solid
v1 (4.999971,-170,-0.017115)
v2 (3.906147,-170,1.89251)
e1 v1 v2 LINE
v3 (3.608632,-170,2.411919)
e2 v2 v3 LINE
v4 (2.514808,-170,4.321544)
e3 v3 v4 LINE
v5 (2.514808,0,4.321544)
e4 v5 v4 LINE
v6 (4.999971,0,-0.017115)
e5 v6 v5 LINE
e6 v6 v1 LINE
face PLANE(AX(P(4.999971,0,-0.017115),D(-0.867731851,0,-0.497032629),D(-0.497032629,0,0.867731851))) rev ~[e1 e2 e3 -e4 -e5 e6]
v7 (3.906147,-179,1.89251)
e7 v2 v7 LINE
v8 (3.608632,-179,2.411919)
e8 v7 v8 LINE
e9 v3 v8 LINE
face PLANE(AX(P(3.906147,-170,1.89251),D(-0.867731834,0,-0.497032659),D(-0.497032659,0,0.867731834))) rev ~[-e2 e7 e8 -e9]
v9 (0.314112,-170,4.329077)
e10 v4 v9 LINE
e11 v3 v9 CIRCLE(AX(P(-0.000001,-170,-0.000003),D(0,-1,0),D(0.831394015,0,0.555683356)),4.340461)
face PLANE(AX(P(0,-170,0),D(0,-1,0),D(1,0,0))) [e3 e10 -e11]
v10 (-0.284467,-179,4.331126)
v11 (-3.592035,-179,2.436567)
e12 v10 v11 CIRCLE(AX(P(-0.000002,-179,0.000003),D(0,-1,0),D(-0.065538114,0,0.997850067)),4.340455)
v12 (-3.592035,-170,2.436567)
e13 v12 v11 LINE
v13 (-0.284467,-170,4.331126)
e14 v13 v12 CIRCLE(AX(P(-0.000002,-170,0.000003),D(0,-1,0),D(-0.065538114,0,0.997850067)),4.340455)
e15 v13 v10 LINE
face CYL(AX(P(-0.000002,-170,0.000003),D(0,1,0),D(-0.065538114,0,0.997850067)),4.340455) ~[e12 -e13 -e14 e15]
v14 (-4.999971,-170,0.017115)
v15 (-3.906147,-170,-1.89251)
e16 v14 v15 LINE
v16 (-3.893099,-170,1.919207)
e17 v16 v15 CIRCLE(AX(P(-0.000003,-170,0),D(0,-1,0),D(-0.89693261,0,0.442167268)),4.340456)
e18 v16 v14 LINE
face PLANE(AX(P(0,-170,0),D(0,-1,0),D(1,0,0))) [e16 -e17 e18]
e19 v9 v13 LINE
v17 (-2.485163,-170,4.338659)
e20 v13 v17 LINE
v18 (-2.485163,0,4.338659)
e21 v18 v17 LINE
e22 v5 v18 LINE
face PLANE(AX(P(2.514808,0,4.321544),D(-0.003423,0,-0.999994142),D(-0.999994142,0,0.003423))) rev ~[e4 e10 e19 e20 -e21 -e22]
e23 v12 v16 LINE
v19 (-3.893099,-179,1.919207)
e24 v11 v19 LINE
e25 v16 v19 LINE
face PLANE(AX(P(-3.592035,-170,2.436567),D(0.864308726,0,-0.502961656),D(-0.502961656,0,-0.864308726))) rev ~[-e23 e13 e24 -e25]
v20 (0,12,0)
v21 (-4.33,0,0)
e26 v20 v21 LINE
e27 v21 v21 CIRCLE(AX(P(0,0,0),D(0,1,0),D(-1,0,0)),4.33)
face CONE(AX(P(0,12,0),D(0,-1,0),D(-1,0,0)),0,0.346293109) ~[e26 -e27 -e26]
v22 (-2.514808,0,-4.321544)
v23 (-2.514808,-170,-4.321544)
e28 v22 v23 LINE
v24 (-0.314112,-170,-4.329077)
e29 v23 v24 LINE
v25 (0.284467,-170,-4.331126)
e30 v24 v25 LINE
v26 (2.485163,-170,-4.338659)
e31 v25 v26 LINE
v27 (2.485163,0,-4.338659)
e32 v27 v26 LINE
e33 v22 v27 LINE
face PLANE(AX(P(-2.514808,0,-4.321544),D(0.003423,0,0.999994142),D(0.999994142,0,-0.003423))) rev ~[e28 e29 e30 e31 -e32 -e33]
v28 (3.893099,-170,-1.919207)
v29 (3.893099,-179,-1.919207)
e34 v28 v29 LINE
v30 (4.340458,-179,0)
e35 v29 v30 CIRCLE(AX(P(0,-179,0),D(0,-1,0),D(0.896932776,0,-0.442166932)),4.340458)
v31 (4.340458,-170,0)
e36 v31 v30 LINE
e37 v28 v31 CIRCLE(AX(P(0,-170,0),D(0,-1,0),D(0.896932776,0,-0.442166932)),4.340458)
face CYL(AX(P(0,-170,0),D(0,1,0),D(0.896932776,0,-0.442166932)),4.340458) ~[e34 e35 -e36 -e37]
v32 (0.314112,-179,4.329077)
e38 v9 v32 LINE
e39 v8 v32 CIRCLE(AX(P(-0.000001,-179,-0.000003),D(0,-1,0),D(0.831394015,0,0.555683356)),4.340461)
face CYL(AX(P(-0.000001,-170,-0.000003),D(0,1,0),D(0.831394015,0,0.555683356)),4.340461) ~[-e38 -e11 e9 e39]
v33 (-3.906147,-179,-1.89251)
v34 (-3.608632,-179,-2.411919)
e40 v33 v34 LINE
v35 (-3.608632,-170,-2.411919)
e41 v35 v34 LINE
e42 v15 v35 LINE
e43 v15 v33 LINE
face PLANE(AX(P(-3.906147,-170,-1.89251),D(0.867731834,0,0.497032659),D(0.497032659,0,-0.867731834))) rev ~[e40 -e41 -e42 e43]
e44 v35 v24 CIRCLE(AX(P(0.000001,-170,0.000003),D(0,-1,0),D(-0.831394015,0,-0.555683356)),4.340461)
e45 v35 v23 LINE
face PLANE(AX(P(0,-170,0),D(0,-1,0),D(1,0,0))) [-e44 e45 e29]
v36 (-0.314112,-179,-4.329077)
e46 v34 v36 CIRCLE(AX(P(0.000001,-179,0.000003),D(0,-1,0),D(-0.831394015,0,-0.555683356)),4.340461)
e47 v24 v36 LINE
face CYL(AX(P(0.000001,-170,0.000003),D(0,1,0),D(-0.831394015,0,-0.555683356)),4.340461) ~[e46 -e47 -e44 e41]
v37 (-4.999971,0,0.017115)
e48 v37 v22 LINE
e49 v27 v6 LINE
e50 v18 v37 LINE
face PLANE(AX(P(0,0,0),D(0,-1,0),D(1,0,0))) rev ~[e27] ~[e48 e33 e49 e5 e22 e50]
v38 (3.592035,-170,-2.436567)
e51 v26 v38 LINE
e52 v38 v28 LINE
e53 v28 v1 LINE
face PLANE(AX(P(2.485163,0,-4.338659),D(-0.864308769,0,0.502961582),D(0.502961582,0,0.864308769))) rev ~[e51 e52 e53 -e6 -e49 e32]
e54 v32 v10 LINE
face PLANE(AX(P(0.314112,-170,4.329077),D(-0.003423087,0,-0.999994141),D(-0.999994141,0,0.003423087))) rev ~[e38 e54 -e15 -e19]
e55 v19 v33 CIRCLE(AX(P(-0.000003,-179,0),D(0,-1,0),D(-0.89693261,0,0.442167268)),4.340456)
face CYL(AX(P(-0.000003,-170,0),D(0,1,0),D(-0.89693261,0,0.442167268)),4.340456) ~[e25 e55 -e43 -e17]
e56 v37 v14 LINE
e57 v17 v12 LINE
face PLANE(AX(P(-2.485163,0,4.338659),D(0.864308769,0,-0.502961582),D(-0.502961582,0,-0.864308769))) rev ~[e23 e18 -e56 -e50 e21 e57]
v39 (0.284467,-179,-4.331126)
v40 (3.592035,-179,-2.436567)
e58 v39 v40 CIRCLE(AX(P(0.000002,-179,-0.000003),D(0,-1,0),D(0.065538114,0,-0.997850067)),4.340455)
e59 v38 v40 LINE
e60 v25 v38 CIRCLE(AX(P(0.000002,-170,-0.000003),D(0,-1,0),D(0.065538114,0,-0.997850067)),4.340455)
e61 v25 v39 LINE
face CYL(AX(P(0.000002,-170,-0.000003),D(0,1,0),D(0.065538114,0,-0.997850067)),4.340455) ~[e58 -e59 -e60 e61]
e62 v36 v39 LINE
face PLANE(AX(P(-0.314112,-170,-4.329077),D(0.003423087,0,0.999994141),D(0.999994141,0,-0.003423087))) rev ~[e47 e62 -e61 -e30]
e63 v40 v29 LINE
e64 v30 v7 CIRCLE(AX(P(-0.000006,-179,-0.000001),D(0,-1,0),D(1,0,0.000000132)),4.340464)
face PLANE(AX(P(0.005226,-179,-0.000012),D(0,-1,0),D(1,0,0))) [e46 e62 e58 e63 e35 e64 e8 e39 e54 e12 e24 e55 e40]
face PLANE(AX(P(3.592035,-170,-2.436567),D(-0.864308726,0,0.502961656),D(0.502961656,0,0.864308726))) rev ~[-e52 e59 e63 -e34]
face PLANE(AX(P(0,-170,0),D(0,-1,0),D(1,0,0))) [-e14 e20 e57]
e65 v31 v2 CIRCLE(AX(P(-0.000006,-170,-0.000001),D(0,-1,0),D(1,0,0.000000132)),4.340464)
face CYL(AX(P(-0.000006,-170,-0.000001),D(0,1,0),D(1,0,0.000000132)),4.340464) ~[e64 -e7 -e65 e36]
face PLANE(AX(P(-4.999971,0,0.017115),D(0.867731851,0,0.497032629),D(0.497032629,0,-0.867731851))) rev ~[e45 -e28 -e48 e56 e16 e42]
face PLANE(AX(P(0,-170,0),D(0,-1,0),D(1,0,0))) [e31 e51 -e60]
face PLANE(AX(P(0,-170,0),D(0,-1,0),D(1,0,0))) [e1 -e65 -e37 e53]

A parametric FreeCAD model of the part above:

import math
import FreeCAD as App
import Part
import Sketcher
from FreeCAD import Vector


def add_polygon(sketch, points):
    """Adds a closed chain of lines whose ends are joined by coincident constraints."""
    first, n = sketch.GeometryCount, len(points)
    for a, b in zip(points, points[1:] + points[:1]):
        sketch.addGeometry(Part.LineSegment(App.Vector(*a, 0), App.Vector(*b, 0)), False)
    for i in range(n):
        sketch.addConstraint(Sketcher.Constraint("Coincident", first + i, 2, first + (i + 1) % n, 1))

doc = App.newDocument("Part")
body = doc.addObject("PartDesign::Body", "Body")

sketch1 = body.newObject("Sketcher::SketchObject", "Sketch")
sketch1.AttachmentSupport = (doc.getObject("XZ_Plane"), [""])
sketch1.MapMode = "FlatFace"
add_polygon(sketch1, [(5, 0), (2.5, 4.3), (-2.5, 4.3), (-5, 0), (-2.5, -4.3), (2.5, -4.3)])
sketch1.addConstraint(Sketcher.Constraint("Symmetric", 0, 2, 3, 2, -1, 1))
sketch1.addConstraint(Sketcher.Constraint("Symmetric", 1, 2, 4, 2, -1, 1))
sketch1.addConstraint(Sketcher.Constraint("Symmetric", 2, 2, 5, 2, -1, 1))
sketch1.addConstraint(Sketcher.Constraint("Equal", 0, 1))
sketch1.addConstraint(Sketcher.Constraint("Equal", 1, 2))
sketch1.addConstraint(Sketcher.Constraint("Distance", 0, 5.0))
sketch1.addConstraint(Sketcher.Constraint("DistanceY", -1, 1, 1, 2, 4.338659))
sketch1.addConstraint(Sketcher.Constraint("DistanceX", 2, 2, -1, 1, 4.999971))
sketch1.addConstraint(Sketcher.Constraint("DistanceX", 2, 2, 1, 2, 2.514808))
pad1 = body.newObject("PartDesign::Pad", "Pad")
pad1.Profile = sketch1
pad1.Length = 170

sketch2 = body.newObject("Sketcher::SketchObject", "Sketch001")
sketch2.AttachmentSupport = (doc.getObject("XY_Plane"), [""])
sketch2.MapMode = "FlatFace"
add_polygon(sketch2, [(-4.3, 0), (0, 0), (0, 12)])
sketch2.addConstraint(Sketcher.Constraint("Horizontal", 0))
sketch2.addConstraint(Sketcher.Constraint("Vertical", 1))
sketch2.addConstraint(Sketcher.Constraint("Coincident", 0, 2, -1, 1))
sketch2.addConstraint(Sketcher.Constraint("DistanceY", 1, 1, 1, 2, 12.0))
sketch2.addConstraint(Sketcher.Constraint("DistanceX", 0, 1, 0, 2, 4.33))
revolution = body.newObject("PartDesign::Revolution", "Revolution")
revolution.Profile = sketch2
revolution.ReferenceAxis = (sketch2, ["V_Axis"])
revolution.Angle = 360

sketch3 = body.newObject("Sketcher::SketchObject", "Sketch002")
sketch3.AttachmentSupport = (doc.getObject("XZ_Plane"), [""])
sketch3.MapMode = "FlatFace"
sketch3.AttachmentOffset = App.Placement(Vector(0, 0, 170), App.Rotation())
sketch3.addGeometry(Part.ArcOfCircle(Part.Circle(Vector(0, 0, 0), Vector(0, 0, 1), 4.3), math.radians(-26), math.radians(0)), False)
sketch3.addGeometry(Part.ArcOfCircle(Part.Circle(Vector(0, 0, 0), Vector(0, 0, 1), 4.3), math.radians(0), math.radians(26)), False)
sketch3.addGeometry(Part.LineSegment(Vector(3.9, 1.9, 0), Vector(3.6, 2.4, 0)), False)
sketch3.addGeometry(Part.ArcOfCircle(Part.Circle(Vector(0, 0, 0), Vector(0, 0, 1), 4.3), math.radians(34), math.radians(86)), False)
sketch3.addGeometry(Part.LineSegment(Vector(0.3, 4.3, 0), Vector(-0.3, 4.3, 0)), False)
sketch3.addGeometry(Part.ArcOfCircle(Part.Circle(Vector(0, 0, 0), Vector(0, 0, 1), 4.3), math.radians(94), math.radians(146)), False)
sketch3.addGeometry(Part.LineSegment(Vector(-3.6, 2.4, 0), Vector(-3.9, 1.9, 0)), False)
sketch3.addGeometry(Part.ArcOfCircle(Part.Circle(Vector(0, 0, 0), Vector(0, 0, 1), 4.3), math.radians(154), math.radians(206)), False)
sketch3.addGeometry(Part.LineSegment(Vector(-3.9, -1.9, 0), Vector(-3.6, -2.4, 0)), False)
sketch3.addGeometry(Part.ArcOfCircle(Part.Circle(Vector(0, 0, 0), Vector(0, 0, 1), 4.3), math.radians(-146), math.radians(-94)), False)
sketch3.addGeometry(Part.LineSegment(Vector(-0.3, -4.3, 0), Vector(0.3, -4.3, 0)), False)
sketch3.addGeometry(Part.ArcOfCircle(Part.Circle(Vector(0, 0, 0), Vector(0, 0, 1), 4.3), math.radians(-86), math.radians(-34)), False)
sketch3.addGeometry(Part.LineSegment(Vector(3.6, -2.4, 0), Vector(3.9, -1.9, 0)), False)
sketch3.addConstraint(Sketcher.Constraint("Tangent", 0, 2, 1, 1))
sketch3.addConstraint(Sketcher.Constraint("Coincident", 1, 2, 2, 1))
sketch3.addConstraint(Sketcher.Constraint("Coincident", 2, 2, 3, 1))
sketch3.addConstraint(Sketcher.Constraint("Coincident", 3, 2, 4, 1))
sketch3.addConstraint(Sketcher.Constraint("Coincident", 4, 2, 5, 1))
sketch3.addConstraint(Sketcher.Constraint("Coincident", 5, 2, 6, 1))
sketch3.addConstraint(Sketcher.Constraint("Coincident", 6, 2, 7, 1))
sketch3.addConstraint(Sketcher.Constraint("Coincident", 7, 2, 8, 1))
sketch3.addConstraint(Sketcher.Constraint("Coincident", 8, 2, 9, 1))
sketch3.addConstraint(Sketcher.Constraint("Coincident", 9, 2, 10, 1))
sketch3.addConstraint(Sketcher.Constraint("Coincident", 10, 2, 11, 1))
sketch3.addConstraint(Sketcher.Constraint("Coincident", 11, 2, 12, 1))
sketch3.addConstraint(Sketcher.Constraint("Coincident", 12, 2, 0, 1))
sketch3.addConstraint(Sketcher.Constraint("Coincident", 0, 3, -1, 1))
sketch3.addConstraint(Sketcher.Constraint("Coincident", 3, 3, -1, 1))
sketch3.addConstraint(Sketcher.Constraint("Coincident", 5, 3, -1, 1))
sketch3.addConstraint(Sketcher.Constraint("Coincident", 7, 3, -1, 1))
sketch3.addConstraint(Sketcher.Constraint("Coincident", 9, 3, -1, 1))
sketch3.addConstraint(Sketcher.Constraint("Coincident", 11, 3, -1, 1))
sketch3.addConstraint(Sketcher.Constraint("Equal", 5, 7))
sketch3.addConstraint(Sketcher.Constraint("Equal", 3, 9))
sketch3.addConstraint(Sketcher.Constraint("Equal", 7, 11))
sketch3.addConstraint(Sketcher.Constraint("Symmetric", 1, 2, 7, 2, -1, 1))
sketch3.addConstraint(Sketcher.Constraint("Symmetric", 6, 2, 12, 2, -1, 1))
sketch3.addConstraint(Sketcher.Constraint("PointOnObject", 0, 2, -1))
sketch3.addConstraint(Sketcher.Constraint("Parallel", 2, 8))
sketch3.addConstraint(Sketcher.Constraint("Parallel", 4, 10))
sketch3.addConstraint(Sketcher.Constraint("Parallel", 6, 12))
sketch3.addConstraint(Sketcher.Constraint("Equal", 2, 4))
sketch3.addConstraint(Sketcher.Constraint("Equal", 4, 6))
sketch3.addConstraint(Sketcher.Constraint("Equal", 8, 10))
sketch3.addConstraint(Sketcher.Constraint("Radius", 0, 4.340458))
sketch3.addConstraint(Sketcher.Constraint("Radius", 3, 4.340461))
sketch3.addConstraint(Sketcher.Constraint("DistanceX", 6, 2, -1, 1, 3.893099))
sketch3.addConstraint(Sketcher.Constraint("DistanceX", 4, 2, 2, 2, 3.893099))
sketch3.addConstraint(Sketcher.Constraint("DistanceY", -1, 1, 1, 2, 1.89251))
sketch3.addConstraint(Sketcher.Constraint("DistanceY", -1, 1, 2, 2, 2.411919))
pad2 = body.newObject("PartDesign::Pad", "Pad001")
pad2.Profile = sketch3
pad2.Length = 9

doc.recompute()
